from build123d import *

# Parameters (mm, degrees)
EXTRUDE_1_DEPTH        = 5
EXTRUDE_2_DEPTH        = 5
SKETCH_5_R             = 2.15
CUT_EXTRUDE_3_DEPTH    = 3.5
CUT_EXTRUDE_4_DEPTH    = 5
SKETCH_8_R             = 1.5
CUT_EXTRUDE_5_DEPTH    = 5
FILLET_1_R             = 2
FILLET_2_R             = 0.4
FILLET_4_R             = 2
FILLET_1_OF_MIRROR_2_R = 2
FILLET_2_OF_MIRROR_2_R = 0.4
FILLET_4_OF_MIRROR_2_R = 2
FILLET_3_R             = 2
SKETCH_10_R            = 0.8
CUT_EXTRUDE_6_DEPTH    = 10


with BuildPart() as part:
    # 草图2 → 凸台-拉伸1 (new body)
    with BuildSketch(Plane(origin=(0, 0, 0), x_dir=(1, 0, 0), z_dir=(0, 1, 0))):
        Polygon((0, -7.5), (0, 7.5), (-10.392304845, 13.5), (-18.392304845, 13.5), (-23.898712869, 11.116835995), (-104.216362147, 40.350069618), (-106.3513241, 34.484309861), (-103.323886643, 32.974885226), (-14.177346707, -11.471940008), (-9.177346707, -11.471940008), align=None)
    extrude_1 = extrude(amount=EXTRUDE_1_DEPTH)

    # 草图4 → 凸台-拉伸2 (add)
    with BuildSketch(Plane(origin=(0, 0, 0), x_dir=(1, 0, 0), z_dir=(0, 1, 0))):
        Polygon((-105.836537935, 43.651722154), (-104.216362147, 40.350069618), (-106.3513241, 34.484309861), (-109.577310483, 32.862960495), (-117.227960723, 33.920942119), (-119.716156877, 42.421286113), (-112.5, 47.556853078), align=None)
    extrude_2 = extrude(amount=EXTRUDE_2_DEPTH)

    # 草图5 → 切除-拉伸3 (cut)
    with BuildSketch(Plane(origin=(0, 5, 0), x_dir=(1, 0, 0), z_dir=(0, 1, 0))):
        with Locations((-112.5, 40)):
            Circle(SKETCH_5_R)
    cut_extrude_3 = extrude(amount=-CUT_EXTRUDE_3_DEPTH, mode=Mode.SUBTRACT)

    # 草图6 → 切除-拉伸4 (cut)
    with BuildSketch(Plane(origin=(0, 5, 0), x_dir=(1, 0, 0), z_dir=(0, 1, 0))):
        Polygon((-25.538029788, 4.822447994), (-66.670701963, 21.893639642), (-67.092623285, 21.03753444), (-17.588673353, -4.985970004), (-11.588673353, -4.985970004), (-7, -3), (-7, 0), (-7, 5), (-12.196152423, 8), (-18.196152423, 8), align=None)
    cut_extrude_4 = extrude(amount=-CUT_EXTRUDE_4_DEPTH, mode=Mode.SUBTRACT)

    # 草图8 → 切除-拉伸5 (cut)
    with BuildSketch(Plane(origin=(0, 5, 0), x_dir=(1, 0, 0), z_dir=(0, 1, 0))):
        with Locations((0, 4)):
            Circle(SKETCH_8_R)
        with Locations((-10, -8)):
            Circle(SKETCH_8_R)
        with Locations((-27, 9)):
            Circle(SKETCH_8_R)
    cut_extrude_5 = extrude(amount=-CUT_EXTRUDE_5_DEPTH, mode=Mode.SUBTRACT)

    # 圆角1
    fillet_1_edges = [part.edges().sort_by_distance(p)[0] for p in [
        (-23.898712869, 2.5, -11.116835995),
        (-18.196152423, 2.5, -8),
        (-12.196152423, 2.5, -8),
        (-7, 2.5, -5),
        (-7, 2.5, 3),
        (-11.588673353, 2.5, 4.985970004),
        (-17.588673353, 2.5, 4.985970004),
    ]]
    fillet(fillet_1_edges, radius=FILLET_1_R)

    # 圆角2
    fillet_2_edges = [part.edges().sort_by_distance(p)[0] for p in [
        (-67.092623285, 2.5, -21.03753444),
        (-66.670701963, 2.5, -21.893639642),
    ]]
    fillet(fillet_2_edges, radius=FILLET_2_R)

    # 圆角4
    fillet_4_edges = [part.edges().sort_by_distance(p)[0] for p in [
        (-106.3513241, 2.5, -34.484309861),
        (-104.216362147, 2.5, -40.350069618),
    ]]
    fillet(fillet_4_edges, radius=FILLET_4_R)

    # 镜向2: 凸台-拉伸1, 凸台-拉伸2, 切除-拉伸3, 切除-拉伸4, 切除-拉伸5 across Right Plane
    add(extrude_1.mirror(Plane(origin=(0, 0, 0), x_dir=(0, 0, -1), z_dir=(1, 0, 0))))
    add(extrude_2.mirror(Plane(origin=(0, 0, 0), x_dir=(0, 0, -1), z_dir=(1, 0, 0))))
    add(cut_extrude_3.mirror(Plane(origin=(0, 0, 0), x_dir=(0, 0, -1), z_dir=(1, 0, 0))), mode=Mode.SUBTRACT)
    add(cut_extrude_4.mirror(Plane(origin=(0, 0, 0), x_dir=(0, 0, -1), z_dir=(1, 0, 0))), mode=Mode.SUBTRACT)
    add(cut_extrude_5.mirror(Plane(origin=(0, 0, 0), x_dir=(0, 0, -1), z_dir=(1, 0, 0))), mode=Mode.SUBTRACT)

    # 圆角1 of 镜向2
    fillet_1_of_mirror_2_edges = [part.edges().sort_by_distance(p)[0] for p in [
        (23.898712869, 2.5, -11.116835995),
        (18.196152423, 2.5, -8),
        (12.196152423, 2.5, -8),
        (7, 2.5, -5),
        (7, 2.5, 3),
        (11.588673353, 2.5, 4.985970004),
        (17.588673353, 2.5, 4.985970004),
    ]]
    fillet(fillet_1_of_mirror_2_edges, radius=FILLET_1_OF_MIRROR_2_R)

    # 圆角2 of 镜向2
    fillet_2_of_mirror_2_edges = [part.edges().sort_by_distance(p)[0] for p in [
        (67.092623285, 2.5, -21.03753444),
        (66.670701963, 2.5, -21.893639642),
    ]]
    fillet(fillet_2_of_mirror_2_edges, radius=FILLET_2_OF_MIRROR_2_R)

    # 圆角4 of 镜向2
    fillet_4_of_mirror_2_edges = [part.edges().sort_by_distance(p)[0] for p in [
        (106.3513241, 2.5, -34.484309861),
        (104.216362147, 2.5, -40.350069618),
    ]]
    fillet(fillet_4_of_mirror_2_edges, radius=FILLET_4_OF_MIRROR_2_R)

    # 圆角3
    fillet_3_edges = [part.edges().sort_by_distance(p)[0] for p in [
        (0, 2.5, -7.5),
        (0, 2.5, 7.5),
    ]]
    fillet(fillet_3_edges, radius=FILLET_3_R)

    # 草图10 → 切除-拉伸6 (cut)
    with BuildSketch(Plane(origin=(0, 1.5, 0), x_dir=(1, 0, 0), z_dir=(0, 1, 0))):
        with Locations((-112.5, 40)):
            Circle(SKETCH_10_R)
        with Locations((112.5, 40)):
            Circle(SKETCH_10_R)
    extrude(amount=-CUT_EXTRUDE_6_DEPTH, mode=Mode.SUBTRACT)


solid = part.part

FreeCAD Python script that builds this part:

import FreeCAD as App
import Part
import Sketcher
Q = App.Units.Quantity


def edges_at(feature, points):
    """Names of the edges that pass closest to the given points."""
    edges = feature.Shape.Edges
    near = lambda p: min(range(len(edges)), key=lambda i: edges[i].distToShape(Part.Vertex(*p))[0])
    return sorted({f"Edge{near(p) + 1}" for p in points})


def add_polygon(sketch, points):
    """Adds a closed chain of lines whose ends are joined by coincident constraints."""
    first, n = sketch.GeometryCount, len(points)
    for a, b in zip(points, points[1:] + points[:1]):
        sketch.addGeometry(Part.LineSegment(App.Vector(*a, 0), App.Vector(*b, 0)), False)
    for i in range(n):
        sketch.addConstraint(Sketcher.Constraint("Coincident", first + i, 2, first + (i + 1) % n, 1))

doc = App.newDocument("Part")
body = doc.addObject("PartDesign::Body", "Body")

# Sketch on XZ plane
sketch1 = doc.addObject("Sketcher::SketchObject", "Sketch")
body.addObject(sketch1)
sketch1.AttachmentSupport = (doc.XZ_Plane, [""])
sketch1.MapMode = "FlatFace"
add_polygon(sketch1, [(0, 7.5), (0, -7.5), (-10.392305, -13.5), (-18.392305, -13.5), (-23.898713, -11.116836), (-104.216362, -40.35007), (-106.351324, -34.48431), (-103.323887, -32.974885), (-14.177347, 11.47194), (-9.177347, 11.47194)])  # lines 0-9
sketch1.addConstraint([
    Sketcher.Constraint("Vertical", 0),
    Sketcher.Constraint("Horizontal", 2),
    Sketcher.Constraint("Horizontal", 8),
    Sketcher.Constraint("Symmetric", 0, 2, 9, 2, -1, 1),
    Sketcher.Constraint("Perpendicular", 4, 5),
    Sketcher.Constraint("Parallel", 6, 7),
    Sketcher.Constraint("Parallel", 3, 9),
    Sketcher.Constraint("DistanceX", 2, 2, 2, 1, Q("8 mm")),
    Sketcher.Constraint("DistanceX", 8, 1, 8, 2, Q("5 mm")),
    Sketcher.Constraint("DistanceY", 0, 2, 0, 1, Q("15 mm")),
    Sketcher.Constraint("Angle", 1, Q("-150 deg")),
    Sketcher.Constraint("Angle", 4, Q("-160 deg")),
    Sketcher.Constraint("Distance", 1, Q("12 mm")),
    Sketcher.Constraint("Distance", 3, Q("6 mm")),
    Sketcher.Constraint("Distance", 9, Q("10 mm")),
    Sketcher.Constraint("Angle", 6, Q("26.5 deg")),
    Sketcher.Constraint("Distance", 5, Q("6.242211 mm")),
    Sketcher.Constraint("Distance", 6, Q("3.38286 mm")),
    Sketcher.Constraint("Distance", 7, Q("99.612378 mm")),
])
pad1 = doc.addObject("PartDesign::Pad", "Pad")
body.addObject(pad1)
pad1.Profile = sketch1
pad1.Length = 5
pad1.Reversed = True

# Sketch on XZ plane
sketch2 = doc.addObject("Sketcher::SketchObject", "Sketch001")
body.addObject(sketch2)
sketch2.AttachmentSupport = (doc.XZ_Plane, [""])
sketch2.MapMode = "FlatFace"
add_polygon(sketch2, [(-104.216362, -40.35007), (-105.836538, -43.651722), (-112.5, -47.556853), (-119.716157, -42.421286), (-117.227961, -33.920942), (-109.57731, -32.86296), (-106.351324, -34.48431)])  # lines 0-6
sketch2.addConstraint([
    Sketcher.Constraint("Equal", 2, 3),
    Sketcher.Constraint("Equal", 1, 4),
    Sketcher.Constraint("Angle", 6, Q("-70 deg")),
    Sketcher.Constraint("DistanceX", 1, 2, -1, 1, Q("112.5 mm")),
    Sketcher.Constraint("DistanceX", 3, 2, 6, 2, Q("13.011599 mm")),
    Sketcher.Constraint("Distance", 2, Q("8.857029 mm")),
    Sketcher.Constraint("Distance", 6, Q("6.242211 mm")),
    Sketcher.Constraint("DistanceX", 3, 2, -1, 1, Q("117.227961 mm")),
    Sketcher.Constraint("DistanceX", 4, 2, -1, 1, Q("109.57731 mm")),
    Sketcher.Constraint("DistanceY", 4, 2, -1, 1, Q("32.86296 mm")),
    Sketcher.Constraint("DistanceY", 5, 2, -1, 1, Q("34.48431 mm")),
    Sketcher.Constraint("DistanceY", 1, 2, 0, 2, Q("3.905131 mm")),
    Sketcher.Constraint("DistanceX", 2, 2, 0, 2, Q("13.879619 mm")),
    Sketcher.Constraint("DistanceY", 1, 2, 3, 2, Q("13.635911 mm")),
])
pad2 = doc.addObject("PartDesign::Pad", "Pad001")
body.addObject(pad2)
pad2.Profile = sketch2
pad2.Length = 5
pad2.Reversed = True

# Sketch on XZ plane
sketch3 = doc.addObject("Sketcher::SketchObject", "Sketch002")
body.addObject(sketch3)
sketch3.AttachmentSupport = (doc.XZ_Plane, [""])
sketch3.MapMode = "FlatFace"
sketch3.AttachmentOffset = App.Placement(App.Vector(0, 0, -5), App.Rotation())
sketch3.addGeometry(Part.Circle(App.Vector(-112.5, -40, 0), App.Vector(0, 0, 1), 2.15), False)
sketch3.addConstraint([
    Sketcher.Constraint("Diameter", 0, Q("4.3 mm")),
    Sketcher.Constraint("DistanceY", 0, 3, -1, 1, Q("40 mm")),
    Sketcher.Constraint("DistanceX", 0, 3, -1, 1, Q("112.5 mm")),
])
pocket1 = doc.addObject("PartDesign::Pocket", "Pocket")
body.addObject(pocket1)
pocket1.Profile = sketch3
pocket1.Length = 3.5
pocket1.Reversed = True

# Sketch on XZ plane
sketch4 = doc.addObject("Sketcher::SketchObject", "Sketch003")
body.addObject(sketch4)
sketch4.AttachmentSupport = (doc.XZ_Plane, [""])
sketch4.MapMode = "FlatFace"
sketch4.AttachmentOffset = App.Placement(App.Vector(0, 0, -5), App.Rotation())
add_polygon(sketch4, [(-25.53803, -4.822448), (-66.670702, -21.89364), (-67.092623, -21.037534), (-17.588673, 4.98597), (-11.588673, 4.98597), (-7, 3), (-7, -5), (-12.196152, -8), (-18.196152, -8)])  # lines 0-8
sketch4.addConstraint([
    Sketcher.Constraint("Horizontal", 3),
    Sketcher.Constraint("Vertical", 5),
    Sketcher.Constraint("Horizontal", 7),
    Sketcher.Constraint("Parallel", 4, 8),
    Sketcher.Constraint("Equal", 3, 7),
    Sketcher.Constraint("DistanceX", 3, 1, 3, 2, Q("6 mm")),
    Sketcher.Constraint("DistanceY", 5, 2, 5, 1, Q("8 mm")),
    Sketcher.Constraint("Angle", 6, Q("-150 deg")),
    Sketcher.Constraint("Distance", 4, Q("5 mm")),
    Sketcher.Constraint("Distance", 6, Q("6 mm")),
    Sketcher.Constraint("Distance", 8, Q("8 mm")),
    Sketcher.Constraint("DistanceX", 4, 2, -1, 1, Q("7 mm")),
    Sketcher.Constraint("DistanceY", -1, 1, 4, 2, Q("3 mm")),
    Sketcher.Constraint("DistanceX", 0, 2, -1, 1, Q("66.670702 mm")),
    Sketcher.Constraint("Distance", 1, Q("0.954428 mm")),
    Sketcher.Constraint("Distance", 2, Q("55.927309 mm")),
    Sketcher.Constraint("DistanceY", 0, 2, -1, 1, Q("21.89364 mm")),
    Sketcher.Constraint("DistanceY", -1, 1, 2, 2, Q("4.98597 mm")),
])
pocket2 = doc.addObject("PartDesign::Pocket", "Pocket001")
body.addObject(pocket2)
pocket2.Profile = sketch4
pocket2.Length = 5
pocket2.Reversed = True

# Sketch on XZ plane
sketch5 = doc.addObject("Sketcher::SketchObject", "Sketch004")
body.addObject(sketch5)
sketch5.AttachmentSupport = (doc.XZ_Plane, [""])
sketch5.MapMode = "FlatFace"
sketch5.AttachmentOffset = App.Placement(App.Vector(0, 0, -5), App.Rotation())
sketch5.addGeometry([
    Part.Circle(App.Vector(0, -4, 0), App.Vector(0, 0, 1), 1.5),
    Part.Circle(App.Vector(-10, 8, 0), App.Vector(0, 0, 1), 1.5),
    Part.Circle(App.Vector(-27, -9, 0), App.Vector(0, 0, 1), 1.5),
], False)
sketch5.addConstraint([
    Sketcher.Constraint("Equal", 0, 1),
    Sketcher.Constraint("Equal", 1, 2),
    Sketcher.Constraint("PointOnObject", 0, 3, -2),
    Sketcher.Constraint("Diameter", 0, Q("3 mm")),
    Sketcher.Constraint("DistanceY", 0, 3, -1, 1, Q("4 mm")),
    Sketcher.Constraint("DistanceX", 1, 3, -1, 1, Q("10 mm")),
    Sketcher.Constraint("DistanceY", -1, 1, 1, 3, Q("8 mm")),
    Sketcher.Constraint("DistanceX", 2, 3, -1, 1, Q("27 mm")),
    Sketcher.Constraint("DistanceY", 2, 3, -1, 1, Q("9 mm")),
])
pocket3 = doc.addObject("PartDesign::Pocket", "Pocket002")
body.addObject(pocket3)
pocket3.Profile = sketch5
pocket3.Length = 5
pocket3.Reversed = True
doc.recompute()

fillet = doc.addObject("PartDesign::Fillet", "Fillet")
body.addObject(fillet)
fillet.Base = (pocket3, edges_at(pocket3, [
    (-23.899, 2.5, -11.117),
    (-18.196, 2.5, -8),
    (-12.196, 2.5, -8),
    (-7, 2.5, -5),
    (-7, 2.5, 3),
    (-11.589, 2.5, 4.986),
    (-17.589, 2.5, 4.986),
]))
fillet.Radius = 2
doc.recompute()

fillet2 = doc.addObject("PartDesign::Fillet", "Fillet001")
body.addObject(fillet2)
fillet2.Base = (fillet, edges_at(fillet, [(-67.093, 2.5, -21.038), (-66.671, 2.5, -21.894)]))
fillet2.Radius = 0.4
doc.recompute()

fillet3 = doc.addObject("PartDesign::Fillet", "Fillet002")
body.addObject(fillet3)
fillet3.Base = (fillet2, edges_at(fillet2, [(-106.351, 2.5, -34.484), (-104.216, 2.5, -40.35)]))
fillet3.Radius = 2
doc.recompute()

mirrored = doc.addObject("PartDesign::Mirrored", "Mirrored")
body.addObject(mirrored)
mirrored.Originals = [pad1, pad2, pocket1, pocket2, pocket3]
mirrored.MirrorPlane = (doc.YZ_Plane, [""])
body.Tip = mirrored
doc.recompute()

fillet4 = doc.addObject("PartDesign::Fillet", "Fillet003")
body.addObject(fillet4)
fillet4.Base = (mirrored, edges_at(mirrored, [
    (23.899, 2.5, -11.117),
    (18.196, 2.5, -8),
    (12.196, 2.5, -8),
    (7, 2.5, -5),
    (7, 2.5, 3),
    (11.589, 2.5, 4.986),
    (17.589, 2.5, 4.986),
]))
fillet4.Radius = 2
doc.recompute()

fillet5 = doc.addObject("PartDesign::Fillet", "Fillet004")
body.addObject(fillet5)
fillet5.Base = (fillet4, edges_at(fillet4, [(67.093, 2.5, -21.038), (66.671, 2.5, -21.894)]))
fillet5.Radius = 0.4
doc.recompute()

fillet6 = doc.addObject("PartDesign::Fillet", "Fillet005")
body.addObject(fillet6)
fillet6.Base = (fillet5, edges_at(fillet5, [(106.351, 2.5, -34.484), (104.216, 2.5, -40.35)]))
fillet6.Radius = 2
doc.recompute()

fillet7 = doc.addObject("PartDesign::Fillet", "Fillet006")
body.addObject(fillet7)
fillet7.Base = (fillet6, edges_at(fillet6, [(0, 2.5, -7.5), (0, 2.5, 7.5)]))
fillet7.Radius = 2

# Sketch on XZ plane
sketch6 = doc.addObject("Sketcher::SketchObject", "Sketch005")
body.addObject(sketch6)
sketch6.AttachmentSupport = (doc.XZ_Plane, [""])
sketch6.MapMode = "FlatFace"
sketch6.AttachmentOffset = App.Placement(App.Vector(0, 0, -1.5), App.Rotation())
sketch6.addGeometry([
    Part.Circle(App.Vector(-112.5, -40, 0), App.Vector(0, 0, 1), 0.8),
    Part.Circle(App.Vector(112.5, -40, 0), App.Vector(0, 0, 1), 0.8),
], False)
sketch6.addConstraint([
    Sketcher.Constraint("Equal", 0, 1),
    Sketcher.Constraint("Symmetric", 0, 3, 1, 3, -2),
    Sketcher.Constraint("Diameter", 0, Q("1.6 mm")),
    Sketcher.Constraint("DistanceY", 0, 3, -1, 1, Q("40 mm")),
    Sketcher.Constraint("DistanceX", 0, 3, 1, 3, Q("225 mm")),
])
pocket4 = doc.addObject("PartDesign::Pocket", "Pocket003")
body.addObject(pocket4)
pocket4.Profile = sketch6
pocket4.Length = 10
pocket4.Reversed = True

doc.recompute()
